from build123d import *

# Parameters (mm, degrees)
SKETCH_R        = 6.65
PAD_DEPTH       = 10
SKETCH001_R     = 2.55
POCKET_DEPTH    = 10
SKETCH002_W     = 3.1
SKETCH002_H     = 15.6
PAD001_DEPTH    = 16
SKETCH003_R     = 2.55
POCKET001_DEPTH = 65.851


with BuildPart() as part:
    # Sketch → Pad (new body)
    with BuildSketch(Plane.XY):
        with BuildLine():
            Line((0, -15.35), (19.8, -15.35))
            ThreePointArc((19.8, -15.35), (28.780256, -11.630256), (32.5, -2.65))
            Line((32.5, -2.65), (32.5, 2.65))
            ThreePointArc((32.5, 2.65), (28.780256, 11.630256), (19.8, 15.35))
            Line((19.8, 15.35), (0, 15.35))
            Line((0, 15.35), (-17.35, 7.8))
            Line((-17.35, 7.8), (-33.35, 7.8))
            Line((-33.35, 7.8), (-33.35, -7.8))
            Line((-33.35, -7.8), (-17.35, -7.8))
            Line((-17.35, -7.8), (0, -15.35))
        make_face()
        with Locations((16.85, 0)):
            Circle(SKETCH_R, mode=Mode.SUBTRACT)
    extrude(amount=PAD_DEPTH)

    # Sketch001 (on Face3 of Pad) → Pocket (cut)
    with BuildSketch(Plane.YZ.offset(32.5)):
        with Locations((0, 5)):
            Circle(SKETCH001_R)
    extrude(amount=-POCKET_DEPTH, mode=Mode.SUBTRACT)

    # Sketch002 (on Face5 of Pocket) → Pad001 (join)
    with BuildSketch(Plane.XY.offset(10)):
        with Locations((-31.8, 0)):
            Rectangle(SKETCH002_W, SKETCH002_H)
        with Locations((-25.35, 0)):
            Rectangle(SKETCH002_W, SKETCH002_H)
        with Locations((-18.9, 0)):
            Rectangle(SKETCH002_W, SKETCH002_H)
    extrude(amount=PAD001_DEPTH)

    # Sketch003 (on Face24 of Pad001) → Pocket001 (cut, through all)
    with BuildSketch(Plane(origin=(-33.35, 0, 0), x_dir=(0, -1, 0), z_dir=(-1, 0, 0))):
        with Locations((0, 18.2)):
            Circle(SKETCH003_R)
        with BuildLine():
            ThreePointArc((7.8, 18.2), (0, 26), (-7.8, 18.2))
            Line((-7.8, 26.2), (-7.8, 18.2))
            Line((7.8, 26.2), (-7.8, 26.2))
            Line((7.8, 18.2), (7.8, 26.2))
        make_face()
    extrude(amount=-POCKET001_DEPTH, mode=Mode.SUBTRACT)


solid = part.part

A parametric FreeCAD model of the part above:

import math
import FreeCAD as App
import Part
import Sketcher
Q = App.Units.Quantity


def add_polygon(sketch, points):
    """Adds a closed chain of lines whose ends are joined by coincident constraints."""
    first, n = sketch.GeometryCount, len(points)
    for a, b in zip(points, points[1:] + points[:1]):
        sketch.addGeometry(Part.LineSegment(App.Vector(*a, 0), App.Vector(*b, 0)), False)
    for i in range(n):
        sketch.addConstraint(Sketcher.Constraint("Coincident", first + i, 2, first + (i + 1) % n, 1))

doc = App.newDocument("Part")
body = doc.addObject("PartDesign::Body", "Body")

# Sketch on XY plane
sketch1 = body.newObject("Sketcher::SketchObject", "Sketch")
sketch1.AttachmentSupport = (doc.getObject("XY_Plane"), [""])
sketch1.MapMode = "FlatFace"
sketch1.addGeometry(Part.LineSegment(App.Vector(0, -15, 0), App.Vector(20, -15, 0)), False)
sketch1.addGeometry(Part.ArcOfCircle(Part.Circle(App.Vector(20, -3, 0), App.Vector(0, 0, 1), 13), math.radians(-90), math.radians(0)), False)
sketch1.addGeometry(Part.LineSegment(App.Vector(32, -3, 0), App.Vector(32, 3, 0)), False)
sketch1.addGeometry(Part.ArcOfCircle(Part.Circle(App.Vector(20, 3, 0), App.Vector(0, 0, 1), 13), math.radians(0), math.radians(90)), False)
sketch1.addGeometry(Part.LineSegment(App.Vector(20, 15, 0), App.Vector(0, 15, 0)), False)
sketch1.addGeometry(Part.LineSegment(App.Vector(0, 15, 0), App.Vector(-17, 8, 0)), False)
sketch1.addGeometry(Part.LineSegment(App.Vector(-17, 8, 0), App.Vector(-33, 8, 0)), False)
sketch1.addGeometry(Part.LineSegment(App.Vector(-33, 8, 0), App.Vector(-33, -8, 0)), False)
sketch1.addGeometry(Part.LineSegment(App.Vector(-33, -8, 0), App.Vector(-17, -8, 0)), False)
sketch1.addGeometry(Part.LineSegment(App.Vector(-17, -8, 0), App.Vector(0, -15, 0)), False)
sketch1.addGeometry(Part.Circle(App.Vector(17, 0, 0), App.Vector(0, 0, 1), 7), False)
sketch1.addConstraint(Sketcher.Constraint("Tangent", 0, 2, 1, 1))
sketch1.addConstraint(Sketcher.Constraint("Tangent", 1, 2, 2, 1))
sketch1.addConstraint(Sketcher.Constraint("Tangent", 2, 2, 3, 1))
sketch1.addConstraint(Sketcher.Constraint("Tangent", 3, 2, 4, 1))
sketch1.addConstraint(Sketcher.Constraint("Coincident", 4, 2, 5, 1))
sketch1.addConstraint(Sketcher.Constraint("Coincident", 5, 2, 6, 1))
sketch1.addConstraint(Sketcher.Constraint("Coincident", 6, 2, 7, 1))
sketch1.addConstraint(Sketcher.Constraint("Coincident", 7, 2, 8, 1))
sketch1.addConstraint(Sketcher.Constraint("Coincident", 8, 2, 9, 1))
sketch1.addConstraint(Sketcher.Constraint("Coincident", 9, 2, 0, 1))
sketch1.addConstraint(Sketcher.Constraint("Horizontal", 0))
sketch1.addConstraint(Sketcher.Constraint("Vertical", 2))
sketch1.addConstraint(Sketcher.Constraint("Horizontal", 4))
sketch1.addConstraint(Sketcher.Constraint("Horizontal", 6))
sketch1.addConstraint(Sketcher.Constraint("Vertical", 7))
sketch1.addConstraint(Sketcher.Constraint("Horizontal", 8))
sketch1.addConstraint(Sketcher.Constraint("Equal", 1, 3))
sketch1.addConstraint(Sketcher.Constraint("Symmetric", 4, 2, 9, 2, -1, 1))
sketch1.addConstraint(Sketcher.Constraint("Symmetric", 5, 2, 8, 2, -1))
sketch1.addConstraint(Sketcher.Constraint("PointOnObject", 10, 3, -1))
sketch1.addConstraint(Sketcher.Constraint("PointOnObject", 4, 2, -2))
sketch1.addConstraint(Sketcher.Constraint("Diameter", 10, Q("13.3 mm")))
sketch1.addConstraint(Sketcher.Constraint("Radius", 1, Q("12.7 mm")))
sketch1.addConstraint(Sketcher.Constraint("DistanceX", 6, 2, 6, 1, Q("16 mm")))
sketch1.addConstraint(Sketcher.Constraint("DistanceX", 0, 1, 0, 2, Q("19.8 mm")))
sketch1.addConstraint(Sketcher.Constraint("DistanceY", 2, 1, 2, 2, Q("5.3 mm")))
sketch1.addConstraint(Sketcher.Constraint("DistanceY", 7, 2, 7, 1, Q("15.6 mm")))
sketch1.addConstraint(Sketcher.Constraint("DistanceX", 5, 2, 10, 3, Q("34.2 mm")))
sketch1.addConstraint(Sketcher.Constraint("DistanceX", -1, 1, 10, 3, Q("16.85 mm")))
pad1 = body.newObject("PartDesign::Pad", "Pad")
pad1.Profile = sketch1
pad1.Length = 10

# Sketch on YZ plane
sketch2 = body.newObject("Sketcher::SketchObject", "Sketch001")
sketch2.AttachmentSupport = (doc.getObject("YZ_Plane"), [""])
sketch2.MapMode = "FlatFace"
sketch2.AttachmentOffset = App.Placement(App.Vector(0, 0, 32.5), App.Rotation())
sketch2.addGeometry(Part.Circle(App.Vector(0, 5, 0), App.Vector(0, 0, 1), 2.5), False)
sketch2.addConstraint(Sketcher.Constraint("PointOnObject", 0, 3, -2))
sketch2.addConstraint(Sketcher.Constraint("Diameter", 0, Q("5.1 mm")))
sketch2.addConstraint(Sketcher.Constraint("DistanceY", -1, 1, 0, 3, Q("5 mm")))
pocket1 = body.newObject("PartDesign::Pocket", "Pocket")
pocket1.Profile = sketch2
pocket1.Length = 10

# Sketch on XY plane
sketch3 = body.newObject("Sketcher::SketchObject", "Sketch002")
sketch3.AttachmentSupport = (doc.getObject("XY_Plane"), [""])
sketch3.MapMode = "FlatFace"
sketch3.AttachmentOffset = App.Placement(App.Vector(0, 0, 10), App.Rotation())
add_polygon(sketch3, [(-33.4, 7.8), (-33.4, -7.8), (-30.2, -7.8), (-30.2, 7.8)])  # lines 0-3
add_polygon(sketch3, [(-26.9, 7.8), (-26.9, -7.8), (-23.8, -7.8), (-23.8, 7.8)])  # lines 4-7
add_polygon(sketch3, [(-20.4, 7.8), (-20.4, -7.8), (-17.4, -7.8), (-17.4, 7.8)])  # lines 8-11
sketch3.addConstraint(Sketcher.Constraint("Vertical", 0))
sketch3.addConstraint(Sketcher.Constraint("Horizontal", 1))
sketch3.addConstraint(Sketcher.Constraint("Vertical", 2))
sketch3.addConstraint(Sketcher.Constraint("Horizontal", 3))
sketch3.addConstraint(Sketcher.Constraint("Vertical", 4))
sketch3.addConstraint(Sketcher.Constraint("Horizontal", 5))
sketch3.addConstraint(Sketcher.Constraint("Vertical", 6))
sketch3.addConstraint(Sketcher.Constraint("Horizontal", 7))
sketch3.addConstraint(Sketcher.Constraint("Vertical", 8))
sketch3.addConstraint(Sketcher.Constraint("Horizontal", 9))
sketch3.addConstraint(Sketcher.Constraint("Vertical", 10))
sketch3.addConstraint(Sketcher.Constraint("Horizontal", 11))
sketch3.addConstraint(Sketcher.Constraint("Horizontal", 1, 2, 4, 2))
sketch3.addConstraint(Sketcher.Constraint("Horizontal", 3, 2, 6, 2))
sketch3.addConstraint(Sketcher.Constraint("Horizontal", 5, 2, 8, 2))
sketch3.addConstraint(Sketcher.Constraint("Horizontal", 7, 2, 10, 2))
sketch3.addConstraint(Sketcher.Constraint("Equal", 3, 5))
sketch3.addConstraint(Sketcher.Constraint("Equal", 7, 9))
sketch3.addConstraint(Sketcher.Constraint("DistanceX", 1, 1, 1, 2, Q("3.1 mm")))
sketch3.addConstraint(Sketcher.Constraint("DistanceY", 0, 2, 0, 1, Q("15.6 mm")))
sketch3.addConstraint(Sketcher.Constraint("DistanceX", 0, 2, 9, 2, Q("16 mm")))
sketch3.addConstraint(Sketcher.Constraint("DistanceY", 0, 2, -1, 1, Q("7.8 mm")))
sketch3.addConstraint(Sketcher.Constraint("DistanceX", 4, 2, -1, 1, Q("26.9 mm")))
sketch3.addConstraint(Sketcher.Constraint("DistanceX", 0, 2, -1, 1, Q("33.35 mm")))
pad2 = body.newObject("PartDesign::Pad", "Pad001")
pad2.Profile = sketch3
pad2.Length = 16

# Sketch on YZ plane
sketch4 = body.newObject("Sketcher::SketchObject", "Sketch003")
sketch4.AttachmentSupport = (doc.getObject("YZ_Plane"), [""])
sketch4.MapMode = "FlatFace"
sketch4.AttachmentOffset = App.Placement(App.Vector(0, 0, -33.35), App.Rotation())
sketch4.addGeometry(Part.Circle(App.Vector(0, 18.2, 0), App.Vector(0, 0, 1), 2.5), False)
sketch4.addGeometry(Part.ArcOfCircle(Part.Circle(App.Vector(0, 18.2, 0), App.Vector(0, 0, 1), 7.8), math.radians(0), math.radians(180)), False)
sketch4.addGeometry(Part.LineSegment(App.Vector(-7.8, 18.2, 0), App.Vector(-7.8, 26.2, 0)), False)
sketch4.addGeometry(Part.LineSegment(App.Vector(-7.8, 26.2, 0), App.Vector(7.8, 26.2, 0)), False)
sketch4.addGeometry(Part.LineSegment(App.Vector(7.8, 26.2, 0), App.Vector(7.8, 18.2, 0)), False)
sketch4.addConstraint(Sketcher.Constraint("Tangent", 1, 2, 2, 1))
sketch4.addConstraint(Sketcher.Constraint("Coincident", 2, 2, 3, 1))
sketch4.addConstraint(Sketcher.Constraint("Coincident", 3, 2, 4, 1))
sketch4.addConstraint(Sketcher.Constraint("Tangent", 4, 2, 1, 1))
sketch4.addConstraint(Sketcher.Constraint("Vertical", 2))
sketch4.addConstraint(Sketcher.Constraint("Horizontal", 3))
sketch4.addConstraint(Sketcher.Constraint("Vertical", 4))
sketch4.addConstraint(Sketcher.Constraint("Coincident", 1, 3, 0, 3))
sketch4.addConstraint(Sketcher.Constraint("PointOnObject", 0, 3, -2))
sketch4.addConstraint(Sketcher.Constraint("Diameter", 0, Q("5.1 mm")))
sketch4.addConstraint(Sketcher.Constraint("Radius", 1, Q("7.8 mm")))
sketch4.addConstraint(Sketcher.Constraint("DistanceY", 2, 1, 2, 2, Q("8 mm")))
sketch4.addConstraint(Sketcher.Constraint("DistanceY", -1, 1, 0, 3, Q("18.2 mm")))
pocket2 = body.newObject("PartDesign::Pocket", "Pocket001")
pocket2.Profile = sketch4
pocket2.Type = "ThroughAll"
pocket2.Reversed = True

doc.recompute()
